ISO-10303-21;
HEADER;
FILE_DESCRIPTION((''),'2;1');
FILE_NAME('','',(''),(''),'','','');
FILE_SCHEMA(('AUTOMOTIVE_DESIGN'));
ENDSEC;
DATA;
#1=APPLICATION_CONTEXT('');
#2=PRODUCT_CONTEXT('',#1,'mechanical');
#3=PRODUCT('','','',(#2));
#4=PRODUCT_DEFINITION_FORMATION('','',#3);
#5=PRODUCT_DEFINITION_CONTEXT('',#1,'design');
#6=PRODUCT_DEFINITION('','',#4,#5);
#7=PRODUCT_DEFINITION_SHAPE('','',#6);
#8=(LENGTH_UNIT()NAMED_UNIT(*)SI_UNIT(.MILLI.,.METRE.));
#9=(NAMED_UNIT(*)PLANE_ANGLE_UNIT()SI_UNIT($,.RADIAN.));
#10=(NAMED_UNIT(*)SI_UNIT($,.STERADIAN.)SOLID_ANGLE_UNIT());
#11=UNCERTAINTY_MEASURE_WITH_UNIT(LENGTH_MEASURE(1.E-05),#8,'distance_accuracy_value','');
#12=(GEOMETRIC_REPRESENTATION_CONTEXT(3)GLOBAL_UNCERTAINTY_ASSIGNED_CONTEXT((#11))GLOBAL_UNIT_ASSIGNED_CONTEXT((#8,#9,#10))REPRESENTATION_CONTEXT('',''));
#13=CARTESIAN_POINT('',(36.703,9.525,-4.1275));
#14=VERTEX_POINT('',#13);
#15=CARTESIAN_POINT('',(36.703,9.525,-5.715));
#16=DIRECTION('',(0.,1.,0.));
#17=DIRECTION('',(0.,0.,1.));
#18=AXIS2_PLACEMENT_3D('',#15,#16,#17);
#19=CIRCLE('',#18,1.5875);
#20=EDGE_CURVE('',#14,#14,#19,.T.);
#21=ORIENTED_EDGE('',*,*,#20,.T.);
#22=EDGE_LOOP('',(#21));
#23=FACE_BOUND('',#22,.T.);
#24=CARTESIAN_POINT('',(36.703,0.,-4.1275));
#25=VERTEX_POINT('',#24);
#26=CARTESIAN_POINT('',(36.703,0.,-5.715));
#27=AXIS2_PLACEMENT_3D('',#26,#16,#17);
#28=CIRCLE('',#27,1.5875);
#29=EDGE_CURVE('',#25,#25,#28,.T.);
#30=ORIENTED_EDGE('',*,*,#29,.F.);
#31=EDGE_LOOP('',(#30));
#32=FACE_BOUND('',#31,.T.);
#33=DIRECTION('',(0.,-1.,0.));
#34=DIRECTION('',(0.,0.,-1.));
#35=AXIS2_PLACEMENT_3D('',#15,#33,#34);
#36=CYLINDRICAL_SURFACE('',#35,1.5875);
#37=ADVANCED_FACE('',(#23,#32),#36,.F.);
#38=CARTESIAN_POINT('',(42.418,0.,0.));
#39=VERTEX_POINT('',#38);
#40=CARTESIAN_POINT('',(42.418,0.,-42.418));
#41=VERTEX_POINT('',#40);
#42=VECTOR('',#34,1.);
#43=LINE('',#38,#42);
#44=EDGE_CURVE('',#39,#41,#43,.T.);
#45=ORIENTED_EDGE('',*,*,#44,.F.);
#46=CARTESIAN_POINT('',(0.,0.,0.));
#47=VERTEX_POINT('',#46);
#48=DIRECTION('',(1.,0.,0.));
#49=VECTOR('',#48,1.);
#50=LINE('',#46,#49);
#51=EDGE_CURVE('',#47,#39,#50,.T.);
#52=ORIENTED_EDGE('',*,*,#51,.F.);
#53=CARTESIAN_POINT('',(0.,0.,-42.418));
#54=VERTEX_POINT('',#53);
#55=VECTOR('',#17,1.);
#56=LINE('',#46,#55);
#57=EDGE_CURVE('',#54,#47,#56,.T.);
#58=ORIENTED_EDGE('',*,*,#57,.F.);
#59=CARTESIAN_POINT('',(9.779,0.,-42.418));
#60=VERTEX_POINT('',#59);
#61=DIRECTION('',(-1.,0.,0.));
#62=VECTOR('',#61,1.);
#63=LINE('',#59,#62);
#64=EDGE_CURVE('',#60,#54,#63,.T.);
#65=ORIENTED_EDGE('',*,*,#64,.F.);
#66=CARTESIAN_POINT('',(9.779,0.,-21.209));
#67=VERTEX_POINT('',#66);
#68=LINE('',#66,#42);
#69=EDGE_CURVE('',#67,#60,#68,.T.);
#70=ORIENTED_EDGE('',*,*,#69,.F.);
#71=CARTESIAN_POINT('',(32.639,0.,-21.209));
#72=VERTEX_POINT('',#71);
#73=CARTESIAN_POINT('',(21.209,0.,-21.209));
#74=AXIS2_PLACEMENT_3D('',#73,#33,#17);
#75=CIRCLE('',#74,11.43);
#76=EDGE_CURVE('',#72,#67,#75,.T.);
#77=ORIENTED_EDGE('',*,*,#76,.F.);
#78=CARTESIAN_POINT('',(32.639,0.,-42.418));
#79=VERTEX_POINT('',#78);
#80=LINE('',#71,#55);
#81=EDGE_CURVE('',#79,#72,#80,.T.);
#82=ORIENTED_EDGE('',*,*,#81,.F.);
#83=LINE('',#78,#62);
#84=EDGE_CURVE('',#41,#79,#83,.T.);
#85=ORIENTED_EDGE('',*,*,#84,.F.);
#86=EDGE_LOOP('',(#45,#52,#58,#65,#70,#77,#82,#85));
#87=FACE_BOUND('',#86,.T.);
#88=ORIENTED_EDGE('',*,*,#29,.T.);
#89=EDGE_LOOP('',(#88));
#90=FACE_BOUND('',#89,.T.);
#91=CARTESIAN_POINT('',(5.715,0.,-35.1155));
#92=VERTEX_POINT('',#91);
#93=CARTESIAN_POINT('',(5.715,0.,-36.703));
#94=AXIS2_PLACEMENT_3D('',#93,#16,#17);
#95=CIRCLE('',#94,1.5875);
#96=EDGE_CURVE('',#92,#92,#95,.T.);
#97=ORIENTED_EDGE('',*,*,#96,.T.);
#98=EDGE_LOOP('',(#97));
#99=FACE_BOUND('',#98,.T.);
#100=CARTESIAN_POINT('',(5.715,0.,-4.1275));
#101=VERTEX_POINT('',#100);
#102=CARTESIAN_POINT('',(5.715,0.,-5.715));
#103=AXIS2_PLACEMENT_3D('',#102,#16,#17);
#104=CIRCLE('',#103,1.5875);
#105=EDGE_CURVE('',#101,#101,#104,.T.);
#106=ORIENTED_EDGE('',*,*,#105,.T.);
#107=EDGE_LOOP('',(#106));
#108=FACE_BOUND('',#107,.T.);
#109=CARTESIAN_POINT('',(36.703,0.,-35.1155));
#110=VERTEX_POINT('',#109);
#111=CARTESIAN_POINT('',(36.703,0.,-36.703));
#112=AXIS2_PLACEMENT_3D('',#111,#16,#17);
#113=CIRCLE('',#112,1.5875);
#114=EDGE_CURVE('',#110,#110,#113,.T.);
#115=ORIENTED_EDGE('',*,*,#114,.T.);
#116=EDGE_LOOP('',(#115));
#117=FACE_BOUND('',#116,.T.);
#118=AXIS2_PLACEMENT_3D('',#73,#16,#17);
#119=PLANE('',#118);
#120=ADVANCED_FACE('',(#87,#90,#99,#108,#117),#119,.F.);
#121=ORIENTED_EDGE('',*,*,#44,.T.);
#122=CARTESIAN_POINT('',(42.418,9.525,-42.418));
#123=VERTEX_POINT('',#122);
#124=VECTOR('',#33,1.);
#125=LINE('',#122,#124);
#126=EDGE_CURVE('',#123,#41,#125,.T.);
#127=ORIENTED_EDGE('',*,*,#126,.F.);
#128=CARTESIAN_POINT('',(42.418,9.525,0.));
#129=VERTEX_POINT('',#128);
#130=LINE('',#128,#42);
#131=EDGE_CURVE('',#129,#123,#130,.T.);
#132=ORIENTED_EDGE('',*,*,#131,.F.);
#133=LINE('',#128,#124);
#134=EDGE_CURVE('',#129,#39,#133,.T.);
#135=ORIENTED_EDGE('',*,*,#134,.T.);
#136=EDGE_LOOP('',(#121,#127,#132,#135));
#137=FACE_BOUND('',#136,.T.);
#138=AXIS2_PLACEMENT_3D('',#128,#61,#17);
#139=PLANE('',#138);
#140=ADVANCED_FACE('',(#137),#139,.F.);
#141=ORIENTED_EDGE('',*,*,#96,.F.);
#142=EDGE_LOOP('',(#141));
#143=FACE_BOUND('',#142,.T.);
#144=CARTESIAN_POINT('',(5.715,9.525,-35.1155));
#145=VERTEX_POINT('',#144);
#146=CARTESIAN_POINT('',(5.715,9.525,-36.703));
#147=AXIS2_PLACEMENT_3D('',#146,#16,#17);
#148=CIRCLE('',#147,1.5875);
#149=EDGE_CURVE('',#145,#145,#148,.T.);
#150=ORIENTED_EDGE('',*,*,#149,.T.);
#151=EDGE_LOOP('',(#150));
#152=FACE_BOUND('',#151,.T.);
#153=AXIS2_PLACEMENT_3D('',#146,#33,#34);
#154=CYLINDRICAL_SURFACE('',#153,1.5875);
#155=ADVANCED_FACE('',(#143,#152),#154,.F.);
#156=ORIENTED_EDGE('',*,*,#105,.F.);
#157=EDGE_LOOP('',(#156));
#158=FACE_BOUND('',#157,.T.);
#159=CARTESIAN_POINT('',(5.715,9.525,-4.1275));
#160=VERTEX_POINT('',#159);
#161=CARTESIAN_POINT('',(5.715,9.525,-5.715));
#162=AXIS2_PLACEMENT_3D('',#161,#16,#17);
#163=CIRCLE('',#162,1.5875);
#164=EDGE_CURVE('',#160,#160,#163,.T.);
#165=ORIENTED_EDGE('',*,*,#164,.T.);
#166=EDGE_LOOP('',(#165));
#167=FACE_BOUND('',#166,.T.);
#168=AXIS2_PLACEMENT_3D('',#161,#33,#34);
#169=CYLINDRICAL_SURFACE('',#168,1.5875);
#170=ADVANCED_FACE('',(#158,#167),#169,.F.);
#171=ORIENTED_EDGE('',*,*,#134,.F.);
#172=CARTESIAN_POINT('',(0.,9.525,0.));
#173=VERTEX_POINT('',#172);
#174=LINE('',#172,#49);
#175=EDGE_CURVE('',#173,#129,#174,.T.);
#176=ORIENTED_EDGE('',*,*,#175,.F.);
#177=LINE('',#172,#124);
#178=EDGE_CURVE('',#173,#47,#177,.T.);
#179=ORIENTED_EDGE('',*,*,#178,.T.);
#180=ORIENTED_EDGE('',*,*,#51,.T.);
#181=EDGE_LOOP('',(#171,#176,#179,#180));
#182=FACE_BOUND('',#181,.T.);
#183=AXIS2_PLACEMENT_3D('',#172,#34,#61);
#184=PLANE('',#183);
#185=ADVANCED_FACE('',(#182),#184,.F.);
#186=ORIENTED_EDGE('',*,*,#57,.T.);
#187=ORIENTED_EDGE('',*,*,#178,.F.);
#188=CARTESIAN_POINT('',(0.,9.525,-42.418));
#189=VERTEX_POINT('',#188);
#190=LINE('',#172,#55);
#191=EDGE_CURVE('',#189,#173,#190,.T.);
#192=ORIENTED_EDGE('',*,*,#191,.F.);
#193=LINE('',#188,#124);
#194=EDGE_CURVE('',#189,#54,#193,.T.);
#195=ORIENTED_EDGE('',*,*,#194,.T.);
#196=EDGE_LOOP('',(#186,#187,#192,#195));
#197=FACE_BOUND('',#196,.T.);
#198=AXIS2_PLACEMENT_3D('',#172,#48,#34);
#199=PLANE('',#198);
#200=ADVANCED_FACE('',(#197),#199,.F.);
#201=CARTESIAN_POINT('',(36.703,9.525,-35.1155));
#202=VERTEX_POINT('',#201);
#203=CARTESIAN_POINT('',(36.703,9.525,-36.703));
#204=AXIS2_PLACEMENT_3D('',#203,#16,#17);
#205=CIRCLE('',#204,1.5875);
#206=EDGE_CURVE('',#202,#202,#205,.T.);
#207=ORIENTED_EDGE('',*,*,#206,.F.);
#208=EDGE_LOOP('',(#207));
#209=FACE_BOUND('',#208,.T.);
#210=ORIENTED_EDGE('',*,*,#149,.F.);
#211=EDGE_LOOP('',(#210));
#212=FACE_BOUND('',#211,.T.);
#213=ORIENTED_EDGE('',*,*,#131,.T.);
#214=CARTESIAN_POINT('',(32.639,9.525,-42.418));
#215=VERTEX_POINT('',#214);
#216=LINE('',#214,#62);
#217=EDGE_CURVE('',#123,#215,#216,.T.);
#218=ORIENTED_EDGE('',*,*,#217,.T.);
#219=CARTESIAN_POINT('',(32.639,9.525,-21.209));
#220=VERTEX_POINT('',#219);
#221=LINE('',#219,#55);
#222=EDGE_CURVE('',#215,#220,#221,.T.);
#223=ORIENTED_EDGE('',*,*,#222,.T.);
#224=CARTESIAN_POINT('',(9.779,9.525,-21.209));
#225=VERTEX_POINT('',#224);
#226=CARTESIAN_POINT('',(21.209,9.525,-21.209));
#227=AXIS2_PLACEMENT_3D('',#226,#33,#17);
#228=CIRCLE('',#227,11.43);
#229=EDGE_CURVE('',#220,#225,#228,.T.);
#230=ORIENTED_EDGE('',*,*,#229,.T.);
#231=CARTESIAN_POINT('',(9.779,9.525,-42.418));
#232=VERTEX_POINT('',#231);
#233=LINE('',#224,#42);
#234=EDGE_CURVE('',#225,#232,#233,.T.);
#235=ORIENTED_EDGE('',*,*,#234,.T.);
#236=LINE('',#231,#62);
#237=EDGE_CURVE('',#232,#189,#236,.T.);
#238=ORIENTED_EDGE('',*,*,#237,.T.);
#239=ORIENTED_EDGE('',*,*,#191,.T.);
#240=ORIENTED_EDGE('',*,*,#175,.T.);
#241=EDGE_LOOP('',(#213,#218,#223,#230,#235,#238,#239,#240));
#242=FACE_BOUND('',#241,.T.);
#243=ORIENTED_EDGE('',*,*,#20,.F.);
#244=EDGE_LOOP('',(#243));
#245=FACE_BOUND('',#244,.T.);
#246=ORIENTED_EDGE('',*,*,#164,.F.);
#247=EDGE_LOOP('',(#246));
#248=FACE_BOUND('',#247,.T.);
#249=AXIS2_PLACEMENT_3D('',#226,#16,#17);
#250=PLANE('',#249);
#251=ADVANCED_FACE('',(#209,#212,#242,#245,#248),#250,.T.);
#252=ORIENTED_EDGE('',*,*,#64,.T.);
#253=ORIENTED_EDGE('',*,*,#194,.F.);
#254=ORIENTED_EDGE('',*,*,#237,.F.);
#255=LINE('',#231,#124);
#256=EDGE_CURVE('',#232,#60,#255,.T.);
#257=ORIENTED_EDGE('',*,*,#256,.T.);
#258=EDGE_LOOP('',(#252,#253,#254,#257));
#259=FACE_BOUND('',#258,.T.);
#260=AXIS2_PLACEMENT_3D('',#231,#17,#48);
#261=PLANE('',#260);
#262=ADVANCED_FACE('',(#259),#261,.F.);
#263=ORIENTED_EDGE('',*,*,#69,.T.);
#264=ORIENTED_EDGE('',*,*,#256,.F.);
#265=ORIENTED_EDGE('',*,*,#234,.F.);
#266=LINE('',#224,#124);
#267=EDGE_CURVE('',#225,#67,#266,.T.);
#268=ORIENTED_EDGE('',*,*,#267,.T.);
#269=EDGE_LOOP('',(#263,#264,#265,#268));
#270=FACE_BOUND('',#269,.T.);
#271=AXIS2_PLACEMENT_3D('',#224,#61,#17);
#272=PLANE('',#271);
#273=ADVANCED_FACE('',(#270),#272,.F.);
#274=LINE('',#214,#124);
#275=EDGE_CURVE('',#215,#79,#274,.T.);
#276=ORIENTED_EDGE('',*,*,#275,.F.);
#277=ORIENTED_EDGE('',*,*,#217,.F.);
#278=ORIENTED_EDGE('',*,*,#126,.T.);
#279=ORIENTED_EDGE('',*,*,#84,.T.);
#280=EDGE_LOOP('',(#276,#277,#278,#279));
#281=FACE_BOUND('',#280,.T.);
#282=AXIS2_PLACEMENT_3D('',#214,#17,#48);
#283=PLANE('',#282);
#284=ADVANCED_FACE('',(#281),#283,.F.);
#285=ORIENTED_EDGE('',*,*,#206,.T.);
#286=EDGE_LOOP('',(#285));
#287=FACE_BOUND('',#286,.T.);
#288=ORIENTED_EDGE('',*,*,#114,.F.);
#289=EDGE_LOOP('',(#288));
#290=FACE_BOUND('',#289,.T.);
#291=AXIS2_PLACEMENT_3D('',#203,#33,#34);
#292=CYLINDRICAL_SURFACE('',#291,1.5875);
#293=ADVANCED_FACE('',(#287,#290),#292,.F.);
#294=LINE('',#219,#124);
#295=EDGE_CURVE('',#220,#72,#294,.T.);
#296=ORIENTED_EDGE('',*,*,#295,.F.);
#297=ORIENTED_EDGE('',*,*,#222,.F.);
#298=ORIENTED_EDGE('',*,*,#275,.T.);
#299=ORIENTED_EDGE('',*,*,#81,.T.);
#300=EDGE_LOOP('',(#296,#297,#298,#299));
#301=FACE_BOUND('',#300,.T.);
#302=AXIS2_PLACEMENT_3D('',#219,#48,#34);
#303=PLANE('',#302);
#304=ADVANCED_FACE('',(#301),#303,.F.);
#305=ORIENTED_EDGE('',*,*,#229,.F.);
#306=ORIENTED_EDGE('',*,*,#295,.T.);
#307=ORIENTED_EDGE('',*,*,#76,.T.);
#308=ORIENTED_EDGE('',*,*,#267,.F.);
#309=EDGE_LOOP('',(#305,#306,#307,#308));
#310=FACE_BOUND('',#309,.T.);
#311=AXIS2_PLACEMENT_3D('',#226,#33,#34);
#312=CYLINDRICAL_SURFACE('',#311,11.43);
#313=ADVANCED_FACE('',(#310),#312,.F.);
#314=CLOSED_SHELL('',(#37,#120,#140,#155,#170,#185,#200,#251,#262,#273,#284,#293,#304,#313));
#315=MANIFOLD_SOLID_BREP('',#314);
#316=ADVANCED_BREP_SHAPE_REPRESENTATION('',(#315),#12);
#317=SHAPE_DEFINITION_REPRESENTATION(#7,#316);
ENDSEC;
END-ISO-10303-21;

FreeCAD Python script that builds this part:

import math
import FreeCAD as App
import Part
import Sketcher
from FreeCAD import Vector
Q = App.Units.Quantity

doc = App.newDocument("Part")
body = doc.addObject("PartDesign::Body", "Body")

# Sketch on XZ plane
sketch1 = body.newObject("Sketcher::SketchObject", "Sketch")
sketch1.AttachmentSupport = (doc.getObject("XZ_Plane"), [""])
sketch1.MapMode = "FlatFace"
sketch1.addGeometry([
    Part.LineSegment(Vector(0, 0, 0), Vector(42.4, 0, 0)),  # 0
    Part.LineSegment(Vector(42.4, 0, 0), Vector(42.4, -42.4, 0)),  # 1
    Part.LineSegment(Vector(42.4, -42.4, 0), Vector(32.6, -42.4, 0)),  # 2
    Part.LineSegment(Vector(32.6, -42.4, 0), Vector(32.6, -21.2, 0)),  # 3
    Part.ArcOfCircle(Part.Circle(Vector(21.2, -21.2, 0), Vector(0, 0, 1), 11.4), math.radians(0), math.radians(180)),  # 4
    Part.LineSegment(Vector(9.8, -21.2, 0), Vector(9.8, -42.4, 0)),  # 5
    Part.LineSegment(Vector(9.8, -42.4, 0), Vector(0, -42.4, 0)),  # 6
    Part.LineSegment(Vector(0, -42.4, 0), Vector(0, 0, 0)),  # 7
    Part.Circle(Vector(5.7, -5.7, 0), Vector(0, 0, 1), 1.6),  # 8
    Part.Circle(Vector(36.7, -5.7, 0), Vector(0, 0, 1), 1.6),  # 9
    Part.Circle(Vector(5.7, -36.7, 0), Vector(0, 0, 1), 1.6),  # 10
    Part.Circle(Vector(36.7, -36.7, 0), Vector(0, 0, 1), 1.6),  # 11
], False)
sketch1.addConstraint([
    Sketcher.Constraint("Coincident", 0, 2, 1, 1),
    Sketcher.Constraint("Coincident", 1, 2, 2, 1),
    Sketcher.Constraint("Coincident", 2, 2, 3, 1),
    Sketcher.Constraint("Tangent", 3, 2, 4, 1),
    Sketcher.Constraint("Tangent", 4, 2, 5, 1),
    Sketcher.Constraint("Coincident", 5, 2, 6, 1),
    Sketcher.Constraint("Coincident", 6, 2, 7, 1),
    Sketcher.Constraint("Coincident", 7, 2, 0, 1),
    Sketcher.Constraint("Horizontal", 0),
    Sketcher.Constraint("Vertical", 1),
    Sketcher.Constraint("Horizontal", 2),
    Sketcher.Constraint("Vertical", 3),
    Sketcher.Constraint("Vertical", 5),
    Sketcher.Constraint("Horizontal", 6),
    Sketcher.Constraint("Vertical", 7),
    Sketcher.Constraint("Coincident", 7, 2, -1, 1),
    Sketcher.Constraint("Equal", 8, 9),
    Sketcher.Constraint("Equal", 9, 10),
    Sketcher.Constraint("Equal", 10, 11),
    Sketcher.Constraint("Horizontal", 8, 3, 9, 3),
    Sketcher.Constraint("Horizontal", 10, 3, 11, 3),
    Sketcher.Constraint("Horizontal", 2, 2, 5, 2),
    Sketcher.Constraint("Vertical", 8, 3, 10, 3),
    Sketcher.Constraint("Vertical", 9, 3, 11, 3),
    Sketcher.Constraint("Equal", 2, 6),
    Sketcher.Constraint("Equal", 0, 1),
    Sketcher.Constraint("Radius", 4, Q("0.45 in")),
    Sketcher.Constraint("Diameter", 8, Q("0.125 in")),
    Sketcher.Constraint("DistanceX", 0, 1, 0, 2, Q("1.67 in")),
    Sketcher.Constraint("DistanceY", 3, 1, 3, 2, Q("0.835 in")),
    Sketcher.Constraint("DistanceX", 8, 3, 4, 3, Q("0.61 in")),
    Sketcher.Constraint("DistanceY", 4, 3, 8, 3, Q("0.61 in")),
    Sketcher.Constraint("DistanceX", 4, 3, 9, 3, Q("0.61 in")),
    Sketcher.Constraint("DistanceY", 10, 3, 4, 3, Q("0.61 in")),
])
pad1 = body.newObject("PartDesign::Pad", "Pad")
pad1.Profile = sketch1
pad1.Length = Q("0.375 in")
pad1.Reversed = True

doc.recompute()
